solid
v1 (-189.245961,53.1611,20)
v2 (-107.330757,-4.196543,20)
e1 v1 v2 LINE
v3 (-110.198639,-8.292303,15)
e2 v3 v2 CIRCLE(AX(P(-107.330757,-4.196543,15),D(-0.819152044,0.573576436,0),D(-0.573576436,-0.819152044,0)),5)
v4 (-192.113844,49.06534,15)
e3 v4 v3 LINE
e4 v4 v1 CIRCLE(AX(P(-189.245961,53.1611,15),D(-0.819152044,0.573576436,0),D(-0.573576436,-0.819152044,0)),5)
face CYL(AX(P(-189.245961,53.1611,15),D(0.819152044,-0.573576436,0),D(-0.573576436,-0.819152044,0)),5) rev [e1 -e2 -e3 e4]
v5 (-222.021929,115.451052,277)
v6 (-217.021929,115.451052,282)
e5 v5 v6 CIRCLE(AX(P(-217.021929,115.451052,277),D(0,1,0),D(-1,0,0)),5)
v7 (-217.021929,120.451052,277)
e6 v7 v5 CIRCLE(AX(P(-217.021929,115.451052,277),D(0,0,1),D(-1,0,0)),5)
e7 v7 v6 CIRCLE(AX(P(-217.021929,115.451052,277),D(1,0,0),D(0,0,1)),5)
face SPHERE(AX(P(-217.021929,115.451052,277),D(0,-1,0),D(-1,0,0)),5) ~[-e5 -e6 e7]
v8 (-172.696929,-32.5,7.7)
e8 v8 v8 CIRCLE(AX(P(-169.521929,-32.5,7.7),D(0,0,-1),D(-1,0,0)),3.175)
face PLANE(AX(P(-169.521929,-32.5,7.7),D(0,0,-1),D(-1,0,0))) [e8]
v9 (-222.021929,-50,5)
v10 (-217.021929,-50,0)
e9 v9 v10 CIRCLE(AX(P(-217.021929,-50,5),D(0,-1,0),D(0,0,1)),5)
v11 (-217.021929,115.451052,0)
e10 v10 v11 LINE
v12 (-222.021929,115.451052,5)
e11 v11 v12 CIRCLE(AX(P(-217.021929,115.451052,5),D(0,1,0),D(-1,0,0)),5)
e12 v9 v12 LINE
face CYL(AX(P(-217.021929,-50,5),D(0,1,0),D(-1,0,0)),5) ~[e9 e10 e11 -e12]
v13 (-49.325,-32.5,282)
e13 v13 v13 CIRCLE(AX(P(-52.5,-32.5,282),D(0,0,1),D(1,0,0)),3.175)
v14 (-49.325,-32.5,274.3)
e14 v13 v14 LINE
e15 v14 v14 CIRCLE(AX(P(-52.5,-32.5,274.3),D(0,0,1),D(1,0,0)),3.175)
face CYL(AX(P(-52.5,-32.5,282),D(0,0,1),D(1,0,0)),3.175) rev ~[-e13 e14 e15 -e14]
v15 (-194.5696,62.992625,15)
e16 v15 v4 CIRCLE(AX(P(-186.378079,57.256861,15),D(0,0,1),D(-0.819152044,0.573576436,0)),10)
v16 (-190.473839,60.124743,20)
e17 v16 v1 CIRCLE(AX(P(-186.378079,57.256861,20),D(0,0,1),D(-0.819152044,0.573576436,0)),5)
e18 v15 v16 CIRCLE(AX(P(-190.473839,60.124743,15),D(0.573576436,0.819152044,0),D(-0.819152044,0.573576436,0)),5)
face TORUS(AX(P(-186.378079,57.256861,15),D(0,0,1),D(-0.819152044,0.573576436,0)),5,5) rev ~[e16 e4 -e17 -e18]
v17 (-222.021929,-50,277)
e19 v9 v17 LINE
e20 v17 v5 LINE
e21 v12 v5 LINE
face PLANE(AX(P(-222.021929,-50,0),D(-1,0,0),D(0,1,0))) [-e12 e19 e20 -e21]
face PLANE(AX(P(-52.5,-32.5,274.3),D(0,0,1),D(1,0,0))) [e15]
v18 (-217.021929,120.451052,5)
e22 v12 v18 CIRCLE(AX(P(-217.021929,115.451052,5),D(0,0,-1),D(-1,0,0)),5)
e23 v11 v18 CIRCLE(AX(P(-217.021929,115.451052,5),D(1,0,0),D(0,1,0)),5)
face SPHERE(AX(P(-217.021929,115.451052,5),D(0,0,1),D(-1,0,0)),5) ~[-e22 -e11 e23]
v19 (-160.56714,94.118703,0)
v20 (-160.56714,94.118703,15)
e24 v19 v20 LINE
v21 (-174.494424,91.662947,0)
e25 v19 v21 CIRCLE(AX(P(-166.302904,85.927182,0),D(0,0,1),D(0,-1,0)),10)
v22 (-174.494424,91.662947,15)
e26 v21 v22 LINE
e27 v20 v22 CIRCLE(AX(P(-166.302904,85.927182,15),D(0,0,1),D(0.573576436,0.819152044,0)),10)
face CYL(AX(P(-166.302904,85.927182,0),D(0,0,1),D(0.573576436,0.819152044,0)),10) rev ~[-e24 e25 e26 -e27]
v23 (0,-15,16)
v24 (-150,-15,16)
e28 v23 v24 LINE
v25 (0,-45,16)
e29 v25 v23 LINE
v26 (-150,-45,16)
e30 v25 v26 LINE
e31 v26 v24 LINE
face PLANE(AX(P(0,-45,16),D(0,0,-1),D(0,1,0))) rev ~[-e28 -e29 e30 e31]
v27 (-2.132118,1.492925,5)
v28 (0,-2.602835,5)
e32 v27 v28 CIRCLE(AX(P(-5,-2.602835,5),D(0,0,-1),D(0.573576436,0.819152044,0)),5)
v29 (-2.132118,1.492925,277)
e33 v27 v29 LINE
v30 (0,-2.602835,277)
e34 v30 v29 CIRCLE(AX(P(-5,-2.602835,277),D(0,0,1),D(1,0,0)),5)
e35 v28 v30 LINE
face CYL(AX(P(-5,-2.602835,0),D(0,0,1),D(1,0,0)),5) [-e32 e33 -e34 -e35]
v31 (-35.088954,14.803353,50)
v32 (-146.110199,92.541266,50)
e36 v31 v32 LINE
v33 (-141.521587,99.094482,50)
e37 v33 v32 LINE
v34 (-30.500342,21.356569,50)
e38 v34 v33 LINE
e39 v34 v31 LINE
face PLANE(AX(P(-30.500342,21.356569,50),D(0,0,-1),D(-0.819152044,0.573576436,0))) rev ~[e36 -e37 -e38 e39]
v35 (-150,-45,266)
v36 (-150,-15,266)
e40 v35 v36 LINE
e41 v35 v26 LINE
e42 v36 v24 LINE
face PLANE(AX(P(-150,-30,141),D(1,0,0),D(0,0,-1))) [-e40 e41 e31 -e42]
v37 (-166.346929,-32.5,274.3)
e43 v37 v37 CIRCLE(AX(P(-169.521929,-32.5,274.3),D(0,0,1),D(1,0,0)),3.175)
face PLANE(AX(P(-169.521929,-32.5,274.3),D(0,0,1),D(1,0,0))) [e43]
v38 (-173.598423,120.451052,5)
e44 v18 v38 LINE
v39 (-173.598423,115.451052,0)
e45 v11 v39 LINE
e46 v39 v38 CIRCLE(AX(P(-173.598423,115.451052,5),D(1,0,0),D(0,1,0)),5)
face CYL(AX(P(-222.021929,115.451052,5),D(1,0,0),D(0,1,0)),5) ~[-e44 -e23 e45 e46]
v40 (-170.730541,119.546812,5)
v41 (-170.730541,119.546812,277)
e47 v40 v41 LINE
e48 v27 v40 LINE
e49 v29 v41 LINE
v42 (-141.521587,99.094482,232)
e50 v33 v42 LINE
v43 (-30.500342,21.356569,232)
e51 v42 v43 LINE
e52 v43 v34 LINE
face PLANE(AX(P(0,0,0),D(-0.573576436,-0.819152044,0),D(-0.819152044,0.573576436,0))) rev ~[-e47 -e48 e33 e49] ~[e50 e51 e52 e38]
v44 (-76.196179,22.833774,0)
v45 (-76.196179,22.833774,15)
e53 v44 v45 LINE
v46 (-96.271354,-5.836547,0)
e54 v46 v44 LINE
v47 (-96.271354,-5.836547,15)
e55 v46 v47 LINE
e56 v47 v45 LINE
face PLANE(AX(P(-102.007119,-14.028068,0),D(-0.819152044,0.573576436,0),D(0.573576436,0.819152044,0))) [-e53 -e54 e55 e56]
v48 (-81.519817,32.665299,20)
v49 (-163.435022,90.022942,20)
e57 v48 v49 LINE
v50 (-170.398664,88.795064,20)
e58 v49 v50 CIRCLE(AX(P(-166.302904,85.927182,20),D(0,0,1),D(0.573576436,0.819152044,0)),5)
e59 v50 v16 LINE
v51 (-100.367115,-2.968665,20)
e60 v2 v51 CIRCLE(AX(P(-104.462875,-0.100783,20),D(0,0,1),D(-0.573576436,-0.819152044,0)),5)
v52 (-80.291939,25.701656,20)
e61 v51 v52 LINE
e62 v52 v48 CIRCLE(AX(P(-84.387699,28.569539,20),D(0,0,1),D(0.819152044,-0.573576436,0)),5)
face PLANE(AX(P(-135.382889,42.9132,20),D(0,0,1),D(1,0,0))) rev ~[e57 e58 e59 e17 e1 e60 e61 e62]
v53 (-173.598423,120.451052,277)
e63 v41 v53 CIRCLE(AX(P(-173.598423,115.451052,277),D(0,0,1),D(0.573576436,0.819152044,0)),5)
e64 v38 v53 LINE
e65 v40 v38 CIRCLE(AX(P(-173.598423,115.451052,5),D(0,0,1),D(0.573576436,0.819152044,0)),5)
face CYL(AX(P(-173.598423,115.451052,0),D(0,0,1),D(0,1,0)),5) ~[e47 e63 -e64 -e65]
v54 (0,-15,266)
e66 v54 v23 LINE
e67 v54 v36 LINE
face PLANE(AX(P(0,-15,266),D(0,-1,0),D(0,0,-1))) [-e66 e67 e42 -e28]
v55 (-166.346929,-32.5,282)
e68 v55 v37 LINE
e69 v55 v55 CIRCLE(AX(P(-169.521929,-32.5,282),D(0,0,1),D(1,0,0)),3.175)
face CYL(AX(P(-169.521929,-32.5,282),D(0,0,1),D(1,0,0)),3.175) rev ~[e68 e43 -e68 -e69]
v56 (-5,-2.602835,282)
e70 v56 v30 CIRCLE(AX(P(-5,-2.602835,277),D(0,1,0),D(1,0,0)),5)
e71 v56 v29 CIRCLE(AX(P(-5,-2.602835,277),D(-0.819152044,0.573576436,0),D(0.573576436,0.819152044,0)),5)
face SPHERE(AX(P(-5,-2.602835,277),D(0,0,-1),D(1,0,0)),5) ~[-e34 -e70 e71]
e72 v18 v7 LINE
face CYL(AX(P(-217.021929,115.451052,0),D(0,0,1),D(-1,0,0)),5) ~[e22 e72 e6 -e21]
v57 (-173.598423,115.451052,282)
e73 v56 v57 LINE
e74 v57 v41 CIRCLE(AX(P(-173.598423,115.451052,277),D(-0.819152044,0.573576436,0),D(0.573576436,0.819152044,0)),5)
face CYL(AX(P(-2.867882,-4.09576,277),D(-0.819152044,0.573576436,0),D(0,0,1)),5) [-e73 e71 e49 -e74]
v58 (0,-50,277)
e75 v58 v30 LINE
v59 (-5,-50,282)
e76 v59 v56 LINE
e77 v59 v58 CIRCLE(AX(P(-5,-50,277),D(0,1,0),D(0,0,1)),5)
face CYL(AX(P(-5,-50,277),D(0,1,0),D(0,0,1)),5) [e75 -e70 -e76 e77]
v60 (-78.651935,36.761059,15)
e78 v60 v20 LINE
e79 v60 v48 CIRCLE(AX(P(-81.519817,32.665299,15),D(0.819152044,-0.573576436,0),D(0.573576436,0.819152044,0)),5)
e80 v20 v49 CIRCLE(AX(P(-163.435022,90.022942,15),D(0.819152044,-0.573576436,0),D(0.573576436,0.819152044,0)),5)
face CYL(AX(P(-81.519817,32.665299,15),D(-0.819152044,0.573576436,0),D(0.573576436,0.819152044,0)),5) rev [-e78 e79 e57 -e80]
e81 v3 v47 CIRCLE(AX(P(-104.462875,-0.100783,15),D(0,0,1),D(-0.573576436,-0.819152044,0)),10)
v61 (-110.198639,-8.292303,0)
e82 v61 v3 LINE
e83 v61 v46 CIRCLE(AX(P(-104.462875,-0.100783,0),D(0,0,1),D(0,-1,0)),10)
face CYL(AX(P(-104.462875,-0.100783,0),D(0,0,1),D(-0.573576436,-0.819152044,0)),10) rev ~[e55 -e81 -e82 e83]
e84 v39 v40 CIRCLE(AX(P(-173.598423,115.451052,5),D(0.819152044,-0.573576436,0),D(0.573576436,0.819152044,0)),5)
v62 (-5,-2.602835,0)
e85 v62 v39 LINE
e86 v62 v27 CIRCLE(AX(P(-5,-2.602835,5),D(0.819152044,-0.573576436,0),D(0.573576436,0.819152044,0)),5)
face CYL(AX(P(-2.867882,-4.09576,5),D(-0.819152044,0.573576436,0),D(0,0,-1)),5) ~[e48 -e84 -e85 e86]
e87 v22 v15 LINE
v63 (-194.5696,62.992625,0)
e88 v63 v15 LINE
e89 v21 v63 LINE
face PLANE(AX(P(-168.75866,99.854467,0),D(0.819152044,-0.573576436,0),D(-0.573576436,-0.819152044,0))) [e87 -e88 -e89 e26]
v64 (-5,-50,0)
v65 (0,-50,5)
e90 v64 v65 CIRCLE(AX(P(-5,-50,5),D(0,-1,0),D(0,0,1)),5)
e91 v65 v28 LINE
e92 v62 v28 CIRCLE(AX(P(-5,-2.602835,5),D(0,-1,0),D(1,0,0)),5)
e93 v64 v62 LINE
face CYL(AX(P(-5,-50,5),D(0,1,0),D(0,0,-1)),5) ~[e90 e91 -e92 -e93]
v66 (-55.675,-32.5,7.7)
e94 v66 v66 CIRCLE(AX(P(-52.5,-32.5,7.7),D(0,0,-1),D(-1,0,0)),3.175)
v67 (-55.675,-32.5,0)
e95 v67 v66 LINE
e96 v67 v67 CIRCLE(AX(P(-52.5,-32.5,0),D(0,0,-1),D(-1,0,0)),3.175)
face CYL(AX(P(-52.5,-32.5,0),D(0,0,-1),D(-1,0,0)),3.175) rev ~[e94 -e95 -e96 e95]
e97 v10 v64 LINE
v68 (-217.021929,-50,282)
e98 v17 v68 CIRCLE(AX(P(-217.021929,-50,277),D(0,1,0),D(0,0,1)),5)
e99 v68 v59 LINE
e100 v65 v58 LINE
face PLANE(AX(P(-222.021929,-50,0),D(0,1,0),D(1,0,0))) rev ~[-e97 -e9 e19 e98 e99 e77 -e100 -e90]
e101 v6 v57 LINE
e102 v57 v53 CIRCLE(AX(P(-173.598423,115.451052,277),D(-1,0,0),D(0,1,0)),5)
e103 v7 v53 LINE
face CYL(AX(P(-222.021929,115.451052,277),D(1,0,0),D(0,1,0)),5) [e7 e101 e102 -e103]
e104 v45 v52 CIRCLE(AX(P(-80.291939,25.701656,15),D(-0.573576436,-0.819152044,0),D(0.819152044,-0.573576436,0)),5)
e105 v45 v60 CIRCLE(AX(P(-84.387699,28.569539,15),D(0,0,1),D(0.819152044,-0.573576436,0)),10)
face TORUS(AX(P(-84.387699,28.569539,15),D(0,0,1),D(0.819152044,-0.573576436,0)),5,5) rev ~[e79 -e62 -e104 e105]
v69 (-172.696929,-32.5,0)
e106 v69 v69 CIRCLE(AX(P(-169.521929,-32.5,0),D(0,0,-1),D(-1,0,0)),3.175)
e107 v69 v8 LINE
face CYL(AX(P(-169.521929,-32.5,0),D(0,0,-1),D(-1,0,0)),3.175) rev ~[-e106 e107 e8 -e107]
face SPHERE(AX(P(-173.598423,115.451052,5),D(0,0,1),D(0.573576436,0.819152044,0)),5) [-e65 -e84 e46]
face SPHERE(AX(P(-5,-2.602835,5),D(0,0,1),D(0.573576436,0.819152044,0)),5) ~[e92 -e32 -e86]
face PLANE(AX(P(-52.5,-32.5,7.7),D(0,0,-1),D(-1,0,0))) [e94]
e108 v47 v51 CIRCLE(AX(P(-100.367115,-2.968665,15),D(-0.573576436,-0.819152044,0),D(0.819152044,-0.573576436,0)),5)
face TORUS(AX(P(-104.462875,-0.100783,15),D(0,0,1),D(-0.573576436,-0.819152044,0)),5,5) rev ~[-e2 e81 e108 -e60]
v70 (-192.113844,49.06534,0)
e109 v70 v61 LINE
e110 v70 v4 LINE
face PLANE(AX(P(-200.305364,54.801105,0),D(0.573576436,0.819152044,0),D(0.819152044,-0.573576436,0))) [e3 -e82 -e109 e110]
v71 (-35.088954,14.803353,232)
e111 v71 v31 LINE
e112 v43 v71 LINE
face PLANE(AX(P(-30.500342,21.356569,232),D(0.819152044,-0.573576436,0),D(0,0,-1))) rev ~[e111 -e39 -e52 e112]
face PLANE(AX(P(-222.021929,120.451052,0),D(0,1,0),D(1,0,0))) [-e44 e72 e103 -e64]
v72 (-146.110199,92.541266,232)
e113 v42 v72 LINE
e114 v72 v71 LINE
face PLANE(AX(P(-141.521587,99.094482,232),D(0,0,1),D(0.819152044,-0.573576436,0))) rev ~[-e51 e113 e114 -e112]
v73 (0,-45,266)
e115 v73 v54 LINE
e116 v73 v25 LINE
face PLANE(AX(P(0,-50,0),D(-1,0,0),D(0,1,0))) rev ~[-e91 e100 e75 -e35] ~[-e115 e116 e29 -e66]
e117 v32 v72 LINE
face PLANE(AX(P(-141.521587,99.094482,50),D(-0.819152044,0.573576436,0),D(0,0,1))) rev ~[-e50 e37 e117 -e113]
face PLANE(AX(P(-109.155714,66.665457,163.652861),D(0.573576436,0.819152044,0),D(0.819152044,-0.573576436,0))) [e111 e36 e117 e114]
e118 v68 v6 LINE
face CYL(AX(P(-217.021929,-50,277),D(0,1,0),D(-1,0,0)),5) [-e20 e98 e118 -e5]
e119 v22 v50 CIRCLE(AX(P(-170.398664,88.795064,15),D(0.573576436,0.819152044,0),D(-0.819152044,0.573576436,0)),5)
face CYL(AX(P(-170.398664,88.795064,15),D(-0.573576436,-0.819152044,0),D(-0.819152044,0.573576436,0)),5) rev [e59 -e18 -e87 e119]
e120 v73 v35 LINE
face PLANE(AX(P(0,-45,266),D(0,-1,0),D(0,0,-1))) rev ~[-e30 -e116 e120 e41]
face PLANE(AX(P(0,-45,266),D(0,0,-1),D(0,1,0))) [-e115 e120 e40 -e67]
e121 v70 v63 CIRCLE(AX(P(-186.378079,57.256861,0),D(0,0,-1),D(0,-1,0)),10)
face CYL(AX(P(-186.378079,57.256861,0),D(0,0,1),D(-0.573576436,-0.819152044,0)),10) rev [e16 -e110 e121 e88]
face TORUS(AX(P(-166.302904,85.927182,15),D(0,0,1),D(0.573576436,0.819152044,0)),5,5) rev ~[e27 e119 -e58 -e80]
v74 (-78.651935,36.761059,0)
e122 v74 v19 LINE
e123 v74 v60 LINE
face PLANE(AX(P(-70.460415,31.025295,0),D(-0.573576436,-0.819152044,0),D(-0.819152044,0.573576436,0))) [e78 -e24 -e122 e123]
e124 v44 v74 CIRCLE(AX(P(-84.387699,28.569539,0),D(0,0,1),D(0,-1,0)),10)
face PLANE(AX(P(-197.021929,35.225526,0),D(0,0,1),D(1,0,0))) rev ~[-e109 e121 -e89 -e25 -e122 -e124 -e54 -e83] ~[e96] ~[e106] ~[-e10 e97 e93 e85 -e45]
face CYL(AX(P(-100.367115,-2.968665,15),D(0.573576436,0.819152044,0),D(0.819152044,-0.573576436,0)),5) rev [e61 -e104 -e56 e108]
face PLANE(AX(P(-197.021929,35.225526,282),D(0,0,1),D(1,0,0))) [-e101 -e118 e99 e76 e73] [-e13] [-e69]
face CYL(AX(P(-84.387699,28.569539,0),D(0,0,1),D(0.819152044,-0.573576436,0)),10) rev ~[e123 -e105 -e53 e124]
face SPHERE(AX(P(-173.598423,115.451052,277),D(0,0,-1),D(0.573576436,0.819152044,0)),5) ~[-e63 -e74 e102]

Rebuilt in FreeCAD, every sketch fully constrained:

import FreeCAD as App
import Part
import Sketcher
from FreeCAD import Vector
Q = App.Units.Quantity


def edges_at(feature, points):
    """Names of the edges that pass closest to the given points."""
    edges = feature.Shape.Edges
    near = lambda p: min(range(len(edges)), key=lambda i: edges[i].distToShape(Part.Vertex(*p))[0])
    return sorted({f"Edge{near(p) + 1}" for p in points})

doc = App.newDocument("Part")
body = doc.addObject("PartDesign::Body", "Body")

sketch1 = body.newObject("Sketcher::SketchObject", "Sketch")
sketch1.AttachmentSupport = (doc.getObject("XY_Plane"), [""])
sketch1.MapMode = "FlatFace"
sketch1.addGeometry([
    Part.LineSegment(Vector(-222, 120, 0), Vector(-222, -50, 0)),
    Part.LineSegment(Vector(-222, -50, 0), Vector(0, -50, 0)),
    Part.LineSegment(Vector(0, -50, 0), Vector(0, 0, 0)),
    Part.LineSegment(Vector(0, 0, 0), Vector(-172, 120, 0)),
    Part.LineSegment(Vector(-172, 120, 0), Vector(-222, 120, 0)),
], False)
sketch1.addConstraint([
    Sketcher.Constraint("Coincident", 0, 2, 1, 1),
    Sketcher.Constraint("Coincident", 1, 2, 2, 1),
    Sketcher.Constraint("Coincident", 2, 2, 3, 1),
    Sketcher.Constraint("Coincident", 3, 2, 4, 1),
    Sketcher.Constraint("Coincident", 4, 2, 0, 1),
    Sketcher.Constraint("Vertical", 0),
    Sketcher.Constraint("Horizontal", 1),
    Sketcher.Constraint("Vertical", 2),
    Sketcher.Constraint("Horizontal", 4),
    Sketcher.Constraint("Coincident", 2, 2, -1, 1),
    Sketcher.Constraint("Equal", 4, 2),
    Sketcher.Constraint("DistanceX", 4, 2, 4, 1, Q("50 mm")),
    Sketcher.Constraint("Angle", 3, Q("145 deg")),
    Sketcher.Constraint("Distance", 3, Q("210 mm")),
])
pad1 = body.newObject("PartDesign::Pad", "Pad")
pad1.Profile = sketch1
pad1.Length = 282

sketch2 = body.newObject("Sketcher::SketchObject", "Sketch001")
sketch2.Placement = App.Placement(Vector(0, 0, 0), App.Rotation(Vector(0.819152044, -0.573576436, 0), Vector(0, 0, -0.999999999), Vector(0.573576436, 0.819152044, 0), "ZXY"))
sketch2.addGeometry([
    Part.LineSegment(Vector(-173, -50, 0), Vector(-173, -232, 0)),
    Part.LineSegment(Vector(-173, -232, 0), Vector(-37, -232, 0)),
    Part.LineSegment(Vector(-37, -232, 0), Vector(-37, -50, 0)),
    Part.LineSegment(Vector(-37, -50, 0), Vector(-173, -50, 0)),
], False)
sketch2.addConstraint([
    Sketcher.Constraint("Coincident", 0, 2, 1, 1),
    Sketcher.Constraint("Coincident", 1, 2, 2, 1),
    Sketcher.Constraint("Coincident", 2, 2, 3, 1),
    Sketcher.Constraint("Coincident", 3, 2, 0, 1),
    Sketcher.Constraint("Vertical", 0),
    Sketcher.Constraint("Horizontal", 1),
    Sketcher.Constraint("Vertical", 2),
    Sketcher.Constraint("Horizontal", 3),
    Sketcher.Constraint("DistanceY", 0, 2, 0, 1, Q("182 mm")),
    Sketcher.Constraint("DistanceY", 0, 2, -1, 1, Q("232 mm")),
    Sketcher.Constraint("DistanceX", 1, 1, 1, 2, Q("135.531915 mm")),
    Sketcher.Constraint("DistanceX", 0, 2, -1, 1, Q("172.765957 mm")),
])
pocket1 = body.newObject("PartDesign::Pocket", "Pocket")
pocket1.Profile = sketch2
pocket1.Length = 8

sketch3 = body.newObject("Sketcher::SketchObject", "Sketch002")
sketch3.AttachmentSupport = (doc.getObject("XY_Plane"), [""])
sketch3.MapMode = "FlatFace"
sketch3.AttachmentOffset = App.Placement(Vector(0, 0, 282), App.Rotation())
sketch3.addGeometry([
    Part.Circle(Vector(-52.5, -32.5, 0), Vector(0, 0, 1), 3.2),
    Part.Circle(Vector(-169.5, -32.5, 0), Vector(0, 0, 1), 3.2),
], False)
sketch3.addConstraint([
    Sketcher.Constraint("Equal", 0, 1),
    Sketcher.Constraint("Horizontal", 0, 3, 1, 3),
    Sketcher.Constraint("Diameter", 0, Q("6.35 mm")),
    Sketcher.Constraint("DistanceX", 0, 3, -1, 1, Q("52.5 mm")),
    Sketcher.Constraint("DistanceY", 0, 3, -1, 1, Q("32.5 mm")),
    Sketcher.Constraint("DistanceX", 1, 3, -1, 1, Q("169.521929 mm")),
])
pocket2 = body.newObject("PartDesign::Pocket", "Pocket001")
pocket2.Profile = sketch3
pocket2.Length = 7.7

sketch4 = body.newObject("Sketcher::SketchObject", "Sketch003")
sketch4.AttachmentSupport = (doc.getObject("XY_Plane"), [""])
sketch4.MapMode = "FlatFace"
sketch4.addGeometry([
    Part.Circle(Vector(-169.5, -32.5, 0), Vector(0, 0, 1), 3.2),
    Part.Circle(Vector(-52.5, -32.5, 0), Vector(0, 0, 1), 3.2),
], False)
sketch4.addConstraint([
    Sketcher.Constraint("Equal", 0, 1),
    Sketcher.Constraint("Horizontal", 0, 3, 1, 3),
    Sketcher.Constraint("Diameter", 0, Q("6.35 mm")),
    Sketcher.Constraint("DistanceY", 0, 3, -1, 1, Q("32.5 mm")),
    Sketcher.Constraint("DistanceX", 1, 3, -1, 1, Q("52.5 mm")),
    Sketcher.Constraint("DistanceX", 0, 3, -1, 1, Q("169.521929 mm")),
])
pocket3 = body.newObject("PartDesign::Pocket", "Pocket002")
pocket3.Profile = sketch4
pocket3.Length = 7.7
pocket3.Reversed = True
doc.recompute()

fillet = body.newObject("PartDesign::Fillet", "Fillet")
fillet.Base = (pocket3, edges_at(pocket3, [
    (-222.022, 35.226, 282),
    (-172.022, 120.451, 141),
    (0, 0, 141),
    (-222.022, 120.451, 141),
    (0, -25, 282),
    (-86.011, 60.226, 282),
    (-197.022, 120.451, 282),
    (-86.011, 60.226, 0),
    (0, -25, 0),
    (-222.022, 35.226, 0),
    (-197.022, 120.451, 0),
]))
fillet.Radius = 5

sketch5 = body.newObject("Sketcher::SketchObject", "Sketch004")
sketch5.AttachmentSupport = (doc.getObject("YZ_Plane"), [""])
sketch5.MapMode = "FlatFace"
sketch5.addGeometry([
    Part.LineSegment(Vector(-15, 266, 0), Vector(-45, 266, 0)),
    Part.LineSegment(Vector(-45, 266, 0), Vector(-45, 16, 0)),
    Part.LineSegment(Vector(-45, 16, 0), Vector(-15, 16, 0)),
    Part.LineSegment(Vector(-15, 16, 0), Vector(-15, 266, 0)),
], False)
sketch5.addConstraint([
    Sketcher.Constraint("Coincident", 0, 2, 1, 1),
    Sketcher.Constraint("Coincident", 1, 2, 2, 1),
    Sketcher.Constraint("Coincident", 2, 2, 3, 1),
    Sketcher.Constraint("Coincident", 3, 2, 0, 1),
    Sketcher.Constraint("Horizontal", 0),
    Sketcher.Constraint("Vertical", 1),
    Sketcher.Constraint("Horizontal", 2),
    Sketcher.Constraint("Vertical", 3),
    Sketcher.Constraint("DistanceX", 0, 2, 0, 1, Q("30 mm")),
    Sketcher.Constraint("DistanceY", 1, 2, 1, 1, Q("250 mm")),
    Sketcher.Constraint("DistanceX", 0, 2, -1, 1, Q("45 mm")),
    Sketcher.Constraint("DistanceY", -1, 1, 0, 2, Q("266 mm")),
])
pocket4 = body.newObject("PartDesign::Pocket", "Pocket003")
pocket4.Profile = sketch5
pocket4.Length = 150

sketch6 = body.newObject("Sketcher::SketchObject", "Sketch005")
sketch6.AttachmentSupport = (doc.getObject("XY_Plane"), [""])
sketch6.MapMode = "FlatFace"
sketch6.addGeometry([
    Part.LineSegment(Vector(-102, -14, 0), Vector(-200, 55, 0)),
    Part.LineSegment(Vector(-200, 55, 0), Vector(-169, 100, 0)),
    Part.LineSegment(Vector(-169, 100, 0), Vector(-70, 31, 0)),
    Part.LineSegment(Vector(-70, 31, 0), Vector(-102, -14, 0)),
], False)
sketch6.addConstraint([
    Sketcher.Constraint("Coincident", 0, 2, 1, 1),
    Sketcher.Constraint("Coincident", 1, 2, 2, 1),
    Sketcher.Constraint("Coincident", 2, 2, 3, 1),
    Sketcher.Constraint("Coincident", 3, 2, 0, 1),
    Sketcher.Constraint("Perpendicular", 0, 1),
    Sketcher.Constraint("Perpendicular", 1, 2),
    Sketcher.Constraint("Perpendicular", 2, 3),
    Sketcher.Constraint("Angle", 0, Q("145 deg")),
    Sketcher.Constraint("Distance", 0, Q("120 mm")),
    Sketcher.Constraint("Distance", 1, Q("55 mm")),
    Sketcher.Constraint("DistanceX", 1, 2, -1, 1, Q("168.75866 mm")),
    Sketcher.Constraint("DistanceY", -1, 1, 0, 2, Q("54.801105 mm")),
])
pocket5 = body.newObject("PartDesign::Pocket", "Pocket004")
pocket5.Profile = sketch6
pocket5.Length = 20
pocket5.Reversed = True
doc.recompute()

fillet2 = body.newObject("PartDesign::Fillet", "Fillet001")
fillet2.Base = (pocket5, edges_at(pocket5, [
    (-200.305, 54.801, 10),
    (-102.007, -14.028, 10),
    (-70.46, 31.025, 10),
    (-168.759, 99.854, 10),
]))
fillet2.Radius = 10
doc.recompute()

fillet3 = body.newObject("PartDesign::Fillet", "Fillet002")
fillet3.Base = (fillet2, edges_at(fillet2, [
    (-86.234, 8.499, 20),
    (-119.61, 65.44, 20),
    (-151.156, 20.387, 20),
    (-184.532, 77.328, 20),
    (-196.226, 55.52, 20),
    (-168.039, 95.775, 20),
    (-102.726, -9.949, 20),
    (-74.54, 30.306, 20),
]))
fillet3.Radius = 5

doc.recompute()
